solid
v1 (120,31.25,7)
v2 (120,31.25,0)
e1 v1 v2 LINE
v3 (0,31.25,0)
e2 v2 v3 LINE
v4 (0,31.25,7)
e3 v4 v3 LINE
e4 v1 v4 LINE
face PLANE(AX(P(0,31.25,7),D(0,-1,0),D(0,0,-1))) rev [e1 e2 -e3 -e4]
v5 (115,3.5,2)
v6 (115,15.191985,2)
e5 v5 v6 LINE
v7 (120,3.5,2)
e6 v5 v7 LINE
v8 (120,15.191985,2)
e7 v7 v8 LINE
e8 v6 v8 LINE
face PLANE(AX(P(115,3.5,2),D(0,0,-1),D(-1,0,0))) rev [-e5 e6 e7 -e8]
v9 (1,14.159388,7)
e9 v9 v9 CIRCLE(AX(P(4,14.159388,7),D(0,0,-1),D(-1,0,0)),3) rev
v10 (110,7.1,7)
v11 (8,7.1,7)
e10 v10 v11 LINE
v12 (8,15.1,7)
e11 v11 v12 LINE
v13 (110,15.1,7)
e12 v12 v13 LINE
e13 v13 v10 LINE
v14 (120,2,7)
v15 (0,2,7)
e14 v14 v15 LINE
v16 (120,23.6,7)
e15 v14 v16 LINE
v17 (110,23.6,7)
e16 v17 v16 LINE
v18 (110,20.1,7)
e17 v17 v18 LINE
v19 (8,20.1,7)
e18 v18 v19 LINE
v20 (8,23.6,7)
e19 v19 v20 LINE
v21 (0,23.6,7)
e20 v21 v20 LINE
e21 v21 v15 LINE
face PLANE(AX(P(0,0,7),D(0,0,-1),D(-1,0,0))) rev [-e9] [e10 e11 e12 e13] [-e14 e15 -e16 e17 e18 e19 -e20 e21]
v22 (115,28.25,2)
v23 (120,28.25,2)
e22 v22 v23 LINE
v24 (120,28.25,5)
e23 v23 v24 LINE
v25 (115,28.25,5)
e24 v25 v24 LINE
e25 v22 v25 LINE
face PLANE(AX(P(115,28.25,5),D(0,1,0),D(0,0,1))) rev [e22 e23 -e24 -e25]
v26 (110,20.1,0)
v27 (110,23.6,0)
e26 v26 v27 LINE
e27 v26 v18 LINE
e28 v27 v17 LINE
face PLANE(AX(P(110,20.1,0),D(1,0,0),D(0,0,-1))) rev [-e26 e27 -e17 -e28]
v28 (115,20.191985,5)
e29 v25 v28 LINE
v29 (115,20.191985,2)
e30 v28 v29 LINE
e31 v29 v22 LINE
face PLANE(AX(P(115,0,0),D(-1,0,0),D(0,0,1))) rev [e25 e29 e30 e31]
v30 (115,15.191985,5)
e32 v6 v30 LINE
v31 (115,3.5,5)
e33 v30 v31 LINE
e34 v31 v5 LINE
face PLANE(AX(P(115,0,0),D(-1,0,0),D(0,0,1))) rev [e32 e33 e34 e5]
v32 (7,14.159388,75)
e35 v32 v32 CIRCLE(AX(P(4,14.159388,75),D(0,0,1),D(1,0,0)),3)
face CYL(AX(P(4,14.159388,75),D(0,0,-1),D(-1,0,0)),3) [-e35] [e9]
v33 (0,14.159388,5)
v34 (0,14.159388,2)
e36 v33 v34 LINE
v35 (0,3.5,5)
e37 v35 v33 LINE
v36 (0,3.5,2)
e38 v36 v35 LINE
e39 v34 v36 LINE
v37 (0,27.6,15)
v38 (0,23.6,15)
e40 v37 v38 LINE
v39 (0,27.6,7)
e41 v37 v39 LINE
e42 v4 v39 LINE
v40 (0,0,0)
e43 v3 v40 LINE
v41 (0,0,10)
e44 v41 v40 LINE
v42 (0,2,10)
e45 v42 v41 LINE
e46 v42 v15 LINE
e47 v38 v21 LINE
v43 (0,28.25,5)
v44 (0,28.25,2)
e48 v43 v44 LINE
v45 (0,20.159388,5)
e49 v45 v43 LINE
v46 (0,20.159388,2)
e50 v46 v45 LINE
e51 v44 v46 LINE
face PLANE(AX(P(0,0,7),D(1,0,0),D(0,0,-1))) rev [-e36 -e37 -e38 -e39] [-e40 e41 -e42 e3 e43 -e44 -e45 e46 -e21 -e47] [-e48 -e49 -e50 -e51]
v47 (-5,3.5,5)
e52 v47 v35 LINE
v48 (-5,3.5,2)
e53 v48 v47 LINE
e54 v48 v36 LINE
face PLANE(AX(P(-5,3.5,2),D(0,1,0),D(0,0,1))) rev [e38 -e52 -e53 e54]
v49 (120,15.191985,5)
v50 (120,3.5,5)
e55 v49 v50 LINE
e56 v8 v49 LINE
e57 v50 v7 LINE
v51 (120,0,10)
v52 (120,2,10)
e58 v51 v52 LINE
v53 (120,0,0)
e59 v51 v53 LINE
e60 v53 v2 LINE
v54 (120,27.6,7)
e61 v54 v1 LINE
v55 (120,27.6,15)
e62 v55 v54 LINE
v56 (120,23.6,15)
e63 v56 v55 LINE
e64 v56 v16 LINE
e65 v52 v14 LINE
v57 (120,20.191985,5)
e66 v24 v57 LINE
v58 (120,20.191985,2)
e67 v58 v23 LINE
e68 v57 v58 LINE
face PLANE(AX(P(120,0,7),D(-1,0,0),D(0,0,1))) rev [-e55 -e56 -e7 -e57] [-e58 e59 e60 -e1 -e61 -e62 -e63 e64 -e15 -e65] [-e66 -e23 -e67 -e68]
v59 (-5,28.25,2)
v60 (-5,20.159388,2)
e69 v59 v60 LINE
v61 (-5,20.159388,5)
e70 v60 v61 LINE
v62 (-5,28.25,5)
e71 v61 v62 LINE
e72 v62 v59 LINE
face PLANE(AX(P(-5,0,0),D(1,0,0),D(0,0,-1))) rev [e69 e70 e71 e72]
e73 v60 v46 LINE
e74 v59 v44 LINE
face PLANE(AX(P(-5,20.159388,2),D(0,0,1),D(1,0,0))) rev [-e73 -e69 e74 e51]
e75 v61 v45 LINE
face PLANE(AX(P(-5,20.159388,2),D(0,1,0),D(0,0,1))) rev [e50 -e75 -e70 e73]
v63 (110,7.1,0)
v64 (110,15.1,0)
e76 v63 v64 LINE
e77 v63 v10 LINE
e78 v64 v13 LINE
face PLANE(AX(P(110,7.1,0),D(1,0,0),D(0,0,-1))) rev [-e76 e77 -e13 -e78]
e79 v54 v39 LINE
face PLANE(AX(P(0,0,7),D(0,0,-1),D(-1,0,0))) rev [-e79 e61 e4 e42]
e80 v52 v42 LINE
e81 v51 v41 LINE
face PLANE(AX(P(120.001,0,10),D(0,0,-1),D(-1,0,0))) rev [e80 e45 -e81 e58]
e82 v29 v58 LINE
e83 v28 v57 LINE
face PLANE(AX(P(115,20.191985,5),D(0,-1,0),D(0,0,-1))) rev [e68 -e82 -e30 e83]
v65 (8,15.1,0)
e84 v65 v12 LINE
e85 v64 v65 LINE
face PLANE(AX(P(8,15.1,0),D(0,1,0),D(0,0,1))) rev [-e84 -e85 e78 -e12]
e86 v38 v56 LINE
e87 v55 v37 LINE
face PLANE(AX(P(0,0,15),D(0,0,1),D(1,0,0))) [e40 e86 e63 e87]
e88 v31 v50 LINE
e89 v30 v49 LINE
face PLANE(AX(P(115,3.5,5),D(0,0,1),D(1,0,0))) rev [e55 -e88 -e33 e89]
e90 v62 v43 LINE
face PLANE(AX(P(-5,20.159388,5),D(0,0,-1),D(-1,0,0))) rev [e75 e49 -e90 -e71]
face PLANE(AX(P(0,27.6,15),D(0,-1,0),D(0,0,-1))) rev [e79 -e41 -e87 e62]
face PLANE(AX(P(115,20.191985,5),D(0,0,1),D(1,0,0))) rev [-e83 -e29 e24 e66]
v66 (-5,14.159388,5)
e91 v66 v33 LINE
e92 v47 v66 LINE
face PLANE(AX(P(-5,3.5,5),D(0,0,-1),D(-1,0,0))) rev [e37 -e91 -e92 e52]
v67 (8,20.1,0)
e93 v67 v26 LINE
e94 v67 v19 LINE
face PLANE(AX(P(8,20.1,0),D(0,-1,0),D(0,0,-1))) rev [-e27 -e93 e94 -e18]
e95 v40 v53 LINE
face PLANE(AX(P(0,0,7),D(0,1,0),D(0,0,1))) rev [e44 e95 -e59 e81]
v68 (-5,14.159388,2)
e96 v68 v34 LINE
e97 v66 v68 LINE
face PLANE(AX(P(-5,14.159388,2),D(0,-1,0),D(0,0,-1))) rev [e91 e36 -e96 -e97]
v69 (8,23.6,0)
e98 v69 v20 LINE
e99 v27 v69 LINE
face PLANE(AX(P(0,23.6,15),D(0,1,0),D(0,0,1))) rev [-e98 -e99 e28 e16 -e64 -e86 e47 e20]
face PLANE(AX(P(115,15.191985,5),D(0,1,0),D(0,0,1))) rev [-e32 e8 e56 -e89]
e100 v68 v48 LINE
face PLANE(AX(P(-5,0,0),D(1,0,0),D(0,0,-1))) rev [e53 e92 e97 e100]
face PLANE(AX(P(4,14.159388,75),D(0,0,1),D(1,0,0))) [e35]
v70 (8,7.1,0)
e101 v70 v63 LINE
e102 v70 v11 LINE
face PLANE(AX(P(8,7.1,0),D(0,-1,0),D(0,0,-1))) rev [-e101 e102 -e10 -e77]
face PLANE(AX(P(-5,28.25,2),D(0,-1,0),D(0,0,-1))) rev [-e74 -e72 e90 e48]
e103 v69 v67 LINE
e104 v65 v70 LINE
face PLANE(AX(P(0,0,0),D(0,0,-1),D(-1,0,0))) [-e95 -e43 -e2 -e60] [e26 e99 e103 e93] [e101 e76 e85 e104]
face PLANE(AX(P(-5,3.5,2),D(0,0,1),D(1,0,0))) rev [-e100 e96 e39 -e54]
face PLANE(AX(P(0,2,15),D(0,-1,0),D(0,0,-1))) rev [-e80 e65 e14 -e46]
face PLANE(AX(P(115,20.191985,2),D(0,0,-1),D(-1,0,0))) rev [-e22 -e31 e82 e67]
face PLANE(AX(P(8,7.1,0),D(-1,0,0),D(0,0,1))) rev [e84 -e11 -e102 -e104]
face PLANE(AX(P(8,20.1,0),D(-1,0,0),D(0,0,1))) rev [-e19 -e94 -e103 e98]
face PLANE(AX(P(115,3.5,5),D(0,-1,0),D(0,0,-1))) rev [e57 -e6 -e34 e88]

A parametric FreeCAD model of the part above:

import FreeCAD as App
import Part
import Sketcher
from FreeCAD import Vector

doc = App.newDocument("Part")
body = doc.addObject("PartDesign::Body", "Body")

# Sketch on XY plane
sketch1 = body.newObject("Sketcher::SketchObject", "Sketch")
sketch1.AttachmentSupport = (doc.getObject("XY_Plane"), [""])
sketch1.MapMode = "FlatFace"
sketch1.addGeometry([
    Part.LineSegment(Vector(0, 31, 0), Vector(0, 0, 0)),
    Part.LineSegment(Vector(0, 0, 0), Vector(120, 0, 0)),
    Part.LineSegment(Vector(120, 0, 0), Vector(120, 31, 0)),
    Part.LineSegment(Vector(120, 31, 0), Vector(0, 31, 0)),
], False)
sketch1.addConstraint([
    Sketcher.Constraint("Coincident", 0, 2, 1, 1),
    Sketcher.Constraint("Coincident", 1, 2, 2, 1),
    Sketcher.Constraint("Coincident", 2, 2, 3, 1),
    Sketcher.Constraint("Coincident", 3, 2, 0, 1),
    Sketcher.Constraint("Vertical", 0),
    Sketcher.Constraint("Horizontal", 1),
    Sketcher.Constraint("Vertical", 2),
    Sketcher.Constraint("Horizontal", 3),
    Sketcher.Constraint("Coincident", 0, 2, -1, 1),
    Sketcher.Constraint("DistanceX", 1, 1, 1, 2, 120.0),
    Sketcher.Constraint("DistanceY", 0, 2, 0, 1, 31.25),
])
pad1 = body.newObject("PartDesign::Pad", "Pad")
pad1.Profile = sketch1
pad1.Length = 7

# Sketch on XY plane
sketch2 = body.newObject("Sketcher::SketchObject", "Sketch001")
sketch2.AttachmentSupport = (doc.getObject("XY_Plane"), [""])
sketch2.MapMode = "FlatFace"
sketch2.AttachmentOffset = App.Placement(Vector(0, 0, 7), App.Rotation())
sketch2.addGeometry([
    Part.LineSegment(Vector(0, 27.6, 0), Vector(0, 23.6, 0)),  # 0
    Part.LineSegment(Vector(0, 23.6, 0), Vector(120, 23.6, 0)),  # 1
    Part.LineSegment(Vector(120, 23.6, 0), Vector(120, 27.6, 0)),  # 2
    Part.LineSegment(Vector(120, 27.6, 0), Vector(0, 27.6, 0)),  # 3
    Part.LineSegment(Vector(0, 2, 0), Vector(0, 0, 0)),  # 4
    Part.LineSegment(Vector(0, 0, 0), Vector(120, 0, 0)),  # 5
    Part.LineSegment(Vector(120, 0, 0), Vector(120, 2, 0)),  # 6
    Part.LineSegment(Vector(120, 2, 0), Vector(0, 2, 0)),  # 7
], False)
sketch2.addConstraint([
    Sketcher.Constraint("Coincident", 0, 2, 1, 1),
    Sketcher.Constraint("Coincident", 1, 2, 2, 1),
    Sketcher.Constraint("Coincident", 2, 2, 3, 1),
    Sketcher.Constraint("Coincident", 3, 2, 0, 1),
    Sketcher.Constraint("Coincident", 4, 2, 5, 1),
    Sketcher.Constraint("Coincident", 5, 2, 6, 1),
    Sketcher.Constraint("Coincident", 6, 2, 7, 1),
    Sketcher.Constraint("Coincident", 7, 2, 4, 1),
    Sketcher.Constraint("Vertical", 0),
    Sketcher.Constraint("Horizontal", 1),
    Sketcher.Constraint("Vertical", 2),
    Sketcher.Constraint("Horizontal", 3),
    Sketcher.Constraint("Vertical", 4),
    Sketcher.Constraint("Horizontal", 5),
    Sketcher.Constraint("Vertical", 6),
    Sketcher.Constraint("Horizontal", 7),
    Sketcher.Constraint("Coincident", 4, 2, -1, 1),
    Sketcher.Constraint("PointOnObject", 0, 2, -2),
    Sketcher.Constraint("Vertical", 2, 2, 5, 2),
    Sketcher.Constraint("DistanceX", 1, 1, 1, 2, 120.0),
    Sketcher.Constraint("DistanceY", 0, 2, 0, 1, 4.0),
    Sketcher.Constraint("DistanceY", 4, 2, 4, 1, 2.0),
    Sketcher.Constraint("DistanceY", -1, 1, 0, 2, 23.6),
])
pad2 = body.newObject("PartDesign::Pad", "Pad001")
pad2.Profile = sketch2
pad2.Length = 8

# Sketch on XY plane
sketch3 = body.newObject("Sketcher::SketchObject", "Sketch002")
sketch3.AttachmentSupport = (doc.getObject("XY_Plane"), [""])
sketch3.MapMode = "FlatFace"
sketch3.AttachmentOffset = App.Placement(Vector(0, 0, 7), App.Rotation())
sketch3.addGeometry([
    Part.LineSegment(Vector(8, 15.1, 0), Vector(8, 7.1, 0)),  # 0
    Part.LineSegment(Vector(8, 7.1, 0), Vector(110, 7.1, 0)),  # 1
    Part.LineSegment(Vector(110, 7.1, 0), Vector(110, 15.1, 0)),  # 2
    Part.LineSegment(Vector(110, 15.1, 0), Vector(8, 15.1, 0)),  # 3
    Part.LineSegment(Vector(8, 23.6, 0), Vector(8, 20.1, 0)),  # 4
    Part.LineSegment(Vector(8, 20.1, 0), Vector(110, 20.1, 0)),  # 5
    Part.LineSegment(Vector(110, 20.1, 0), Vector(110, 23.6, 0)),  # 6
    Part.LineSegment(Vector(110, 23.6, 0), Vector(8, 23.6, 0)),  # 7
], False)
sketch3.addConstraint([
    Sketcher.Constraint("Coincident", 0, 2, 1, 1),
    Sketcher.Constraint("Coincident", 1, 2, 2, 1),
    Sketcher.Constraint("Coincident", 2, 2, 3, 1),
    Sketcher.Constraint("Coincident", 3, 2, 0, 1),
    Sketcher.Constraint("Coincident", 4, 2, 5, 1),
    Sketcher.Constraint("Coincident", 5, 2, 6, 1),
    Sketcher.Constraint("Coincident", 6, 2, 7, 1),
    Sketcher.Constraint("Coincident", 7, 2, 4, 1),
    Sketcher.Constraint("Vertical", 0),
    Sketcher.Constraint("Horizontal", 1),
    Sketcher.Constraint("Vertical", 2),
    Sketcher.Constraint("Horizontal", 3),
    Sketcher.Constraint("Vertical", 4),
    Sketcher.Constraint("Horizontal", 5),
    Sketcher.Constraint("Vertical", 6),
    Sketcher.Constraint("Horizontal", 7),
    Sketcher.Constraint("Vertical", 3, 2, 4, 2),
    Sketcher.Constraint("Vertical", 2, 2, 5, 2),
    Sketcher.Constraint("DistanceX", 1, 1, 1, 2, 102.0),
    Sketcher.Constraint("DistanceY", 0, 2, 0, 1, 8.0),
    Sketcher.Constraint("DistanceY", 4, 2, 4, 1, 3.5),
    Sketcher.Constraint("DistanceX", -1, 1, 0, 2, 8.0),
    Sketcher.Constraint("DistanceY", 3, 2, 4, 2, 5.0),
    Sketcher.Constraint("DistanceY", -1, 1, 0, 2, 7.1),
])
pocket1 = body.newObject("PartDesign::Pocket", "Pocket")
pocket1.Profile = sketch3
pocket1.Type = "ThroughAll"
pocket1.Midplane = True

# Sketch on YZ plane
sketch4 = body.newObject("Sketcher::SketchObject", "Sketch003")
sketch4.AttachmentSupport = (doc.getObject("YZ_Plane"), [""])
sketch4.MapMode = "FlatFace"
sketch4.addGeometry([
    Part.LineSegment(Vector(28.3, 2, 0), Vector(20.2, 2, 0)),  # 0
    Part.LineSegment(Vector(20.2, 2, 0), Vector(20.2, 5, 0)),  # 1
    Part.LineSegment(Vector(20.2, 5, 0), Vector(28.3, 5, 0)),  # 2
    Part.LineSegment(Vector(28.3, 5, 0), Vector(28.3, 2, 0)),  # 3
    Part.LineSegment(Vector(14.2, 2, 0), Vector(3.5, 2, 0)),  # 4
    Part.LineSegment(Vector(3.5, 2, 0), Vector(3.5, 5, 0)),  # 5
    Part.LineSegment(Vector(3.5, 5, 0), Vector(14.2, 5, 0)),  # 6
    Part.LineSegment(Vector(14.2, 5, 0), Vector(14.2, 2, 0)),  # 7
], False)
sketch4.addConstraint([
    Sketcher.Constraint("Coincident", 0, 2, 1, 1),
    Sketcher.Constraint("Coincident", 1, 2, 2, 1),
    Sketcher.Constraint("Coincident", 2, 2, 3, 1),
    Sketcher.Constraint("Coincident", 3, 2, 0, 1),
    Sketcher.Constraint("Coincident", 4, 2, 5, 1),
    Sketcher.Constraint("Coincident", 5, 2, 6, 1),
    Sketcher.Constraint("Coincident", 6, 2, 7, 1),
    Sketcher.Constraint("Coincident", 7, 2, 4, 1),
    Sketcher.Constraint("Horizontal", 0),
    Sketcher.Constraint("Vertical", 1),
    Sketcher.Constraint("Horizontal", 2),
    Sketcher.Constraint("Vertical", 3),
    Sketcher.Constraint("Horizontal", 4),
    Sketcher.Constraint("Vertical", 5),
    Sketcher.Constraint("Horizontal", 6),
    Sketcher.Constraint("Vertical", 7),
    Sketcher.Constraint("Horizontal", 3, 2, 4, 2),
    Sketcher.Constraint("Horizontal", 2, 2, 5, 2),
    Sketcher.Constraint("DistanceY", 1, 1, 1, 2, 3.0),
    Sketcher.Constraint("DistanceY", -1, 1, 0, 2, 2.0),
    Sketcher.Constraint("DistanceX", 6, 2, 1, 2, 6.0),
    Sketcher.Constraint("DistanceX", -1, 1, 4, 2, 3.5),
    Sketcher.Constraint("DistanceX", -1, 1, 2, 2, 28.25),
    Sketcher.Constraint("DistanceX", 0, 2, 0, 1, 8.090612),
])
pad3 = body.newObject("PartDesign::Pad", "Pad002")
pad3.Profile = sketch4
pad3.Length = 5
pad3.Reversed = True

# Sketch on YZ plane
sketch5 = body.newObject("Sketcher::SketchObject", "Sketch004")
sketch5.AttachmentSupport = (doc.getObject("YZ_Plane"), [""])
sketch5.MapMode = "FlatFace"
sketch5.AttachmentOffset = App.Placement(Vector(0, 0, 120), App.Rotation())
sketch5.addGeometry([
    Part.LineSegment(Vector(28.2, 5, 0), Vector(20.2, 5, 0)),  # 0
    Part.LineSegment(Vector(20.2, 5, 0), Vector(20.2, 2, 0)),  # 1
    Part.LineSegment(Vector(20.2, 2, 0), Vector(28.2, 2, 0)),  # 2
    Part.LineSegment(Vector(28.2, 2, 0), Vector(28.2, 5, 0)),  # 3
    Part.LineSegment(Vector(15.2, 5, 0), Vector(3.5, 5, 0)),  # 4
    Part.LineSegment(Vector(3.5, 5, 0), Vector(3.5, 2, 0)),  # 5
    Part.LineSegment(Vector(3.5, 2, 0), Vector(15.2, 2, 0)),  # 6
    Part.LineSegment(Vector(15.2, 2, 0), Vector(15.2, 5, 0)),  # 7
], False)
sketch5.addConstraint([
    Sketcher.Constraint("Coincident", 0, 2, 1, 1),
    Sketcher.Constraint("Coincident", 1, 2, 2, 1),
    Sketcher.Constraint("Coincident", 2, 2, 3, 1),
    Sketcher.Constraint("Coincident", 3, 2, 0, 1),
    Sketcher.Constraint("Coincident", 4, 2, 5, 1),
    Sketcher.Constraint("Coincident", 5, 2, 6, 1),
    Sketcher.Constraint("Coincident", 6, 2, 7, 1),
    Sketcher.Constraint("Coincident", 7, 2, 4, 1),
    Sketcher.Constraint("Horizontal", 0),
    Sketcher.Constraint("Vertical", 1),
    Sketcher.Constraint("Horizontal", 2),
    Sketcher.Constraint("Vertical", 3),
    Sketcher.Constraint("Horizontal", 4),
    Sketcher.Constraint("Vertical", 5),
    Sketcher.Constraint("Horizontal", 6),
    Sketcher.Constraint("Vertical", 7),
    Sketcher.Constraint("Horizontal", 3, 2, 4, 2),
    Sketcher.Constraint("Horizontal", 2, 2, 5, 2),
    Sketcher.Constraint("DistanceY", 1, 2, 1, 1, 3.0),
    Sketcher.Constraint("DistanceY", -1, 1, 0, 2, 5.0),
    Sketcher.Constraint("DistanceX", 6, 2, 1, 2, 5.0),
    Sketcher.Constraint("DistanceX", -1, 1, 4, 2, 3.5),
    Sketcher.Constraint("DistanceX", -1, 1, 2, 2, 28.25),
    Sketcher.Constraint("DistanceX", 0, 2, 0, 1, 8.058015),
])
pocket2 = body.newObject("PartDesign::Pocket", "Pocket001")
pocket2.Profile = sketch5
pocket2.Length = 5

# Sketch on YZ plane
sketch6 = body.newObject("Sketcher::SketchObject", "Sketch005")
sketch6.AttachmentSupport = (doc.getObject("YZ_Plane"), [""])
sketch6.MapMode = "FlatFace"
sketch6.addGeometry([
    Part.LineSegment(Vector(2, 10, 0), Vector(0, 10, 0)),
    Part.LineSegment(Vector(0, 10, 0), Vector(0, 15, 0)),
    Part.LineSegment(Vector(0, 15, 0), Vector(2, 15, 0)),
    Part.LineSegment(Vector(2, 15, 0), Vector(2, 10, 0)),
], False)
sketch6.addConstraint([
    Sketcher.Constraint("Coincident", 0, 2, 1, 1),
    Sketcher.Constraint("Coincident", 1, 2, 2, 1),
    Sketcher.Constraint("Coincident", 2, 2, 3, 1),
    Sketcher.Constraint("Coincident", 3, 2, 0, 1),
    Sketcher.Constraint("Horizontal", 0),
    Sketcher.Constraint("Vertical", 1),
    Sketcher.Constraint("Horizontal", 2),
    Sketcher.Constraint("Vertical", 3),
    Sketcher.Constraint("PointOnObject", 0, 2, -2),
    Sketcher.Constraint("DistanceX", 0, 2, 0, 1, 2.0),
    Sketcher.Constraint("DistanceY", 1, 1, 1, 2, 5.0),
    Sketcher.Constraint("DistanceY", -1, 1, 0, 2, 10.0),
])
pocket3 = body.newObject("PartDesign::Pocket", "Pocket002")
pocket3.Profile = sketch6
pocket3.Type = "UpToFirst"
pocket3.Reversed = True

# Sketch on XY plane
sketch7 = body.newObject("Sketcher::SketchObject", "Sketch006")
sketch7.AttachmentSupport = (doc.getObject("XY_Plane"), [""])
sketch7.MapMode = "FlatFace"
sketch7.AttachmentOffset = App.Placement(Vector(0, 0, 7), App.Rotation())
sketch7.addGeometry(Part.Circle(Vector(4, 14.2, 0), Vector(0, 0, 1), 3), False)
sketch7.addConstraint([
    Sketcher.Constraint("Diameter", 0, 6.0),
    Sketcher.Constraint("DistanceX", -1, 1, 0, 3, 4.0),
    Sketcher.Constraint("DistanceY", -1, 1, 0, 3, 14.159388),
])
pad4 = body.newObject("PartDesign::Pad", "Pad003")
pad4.Profile = sketch7
pad4.Length = 68

doc.recompute()
